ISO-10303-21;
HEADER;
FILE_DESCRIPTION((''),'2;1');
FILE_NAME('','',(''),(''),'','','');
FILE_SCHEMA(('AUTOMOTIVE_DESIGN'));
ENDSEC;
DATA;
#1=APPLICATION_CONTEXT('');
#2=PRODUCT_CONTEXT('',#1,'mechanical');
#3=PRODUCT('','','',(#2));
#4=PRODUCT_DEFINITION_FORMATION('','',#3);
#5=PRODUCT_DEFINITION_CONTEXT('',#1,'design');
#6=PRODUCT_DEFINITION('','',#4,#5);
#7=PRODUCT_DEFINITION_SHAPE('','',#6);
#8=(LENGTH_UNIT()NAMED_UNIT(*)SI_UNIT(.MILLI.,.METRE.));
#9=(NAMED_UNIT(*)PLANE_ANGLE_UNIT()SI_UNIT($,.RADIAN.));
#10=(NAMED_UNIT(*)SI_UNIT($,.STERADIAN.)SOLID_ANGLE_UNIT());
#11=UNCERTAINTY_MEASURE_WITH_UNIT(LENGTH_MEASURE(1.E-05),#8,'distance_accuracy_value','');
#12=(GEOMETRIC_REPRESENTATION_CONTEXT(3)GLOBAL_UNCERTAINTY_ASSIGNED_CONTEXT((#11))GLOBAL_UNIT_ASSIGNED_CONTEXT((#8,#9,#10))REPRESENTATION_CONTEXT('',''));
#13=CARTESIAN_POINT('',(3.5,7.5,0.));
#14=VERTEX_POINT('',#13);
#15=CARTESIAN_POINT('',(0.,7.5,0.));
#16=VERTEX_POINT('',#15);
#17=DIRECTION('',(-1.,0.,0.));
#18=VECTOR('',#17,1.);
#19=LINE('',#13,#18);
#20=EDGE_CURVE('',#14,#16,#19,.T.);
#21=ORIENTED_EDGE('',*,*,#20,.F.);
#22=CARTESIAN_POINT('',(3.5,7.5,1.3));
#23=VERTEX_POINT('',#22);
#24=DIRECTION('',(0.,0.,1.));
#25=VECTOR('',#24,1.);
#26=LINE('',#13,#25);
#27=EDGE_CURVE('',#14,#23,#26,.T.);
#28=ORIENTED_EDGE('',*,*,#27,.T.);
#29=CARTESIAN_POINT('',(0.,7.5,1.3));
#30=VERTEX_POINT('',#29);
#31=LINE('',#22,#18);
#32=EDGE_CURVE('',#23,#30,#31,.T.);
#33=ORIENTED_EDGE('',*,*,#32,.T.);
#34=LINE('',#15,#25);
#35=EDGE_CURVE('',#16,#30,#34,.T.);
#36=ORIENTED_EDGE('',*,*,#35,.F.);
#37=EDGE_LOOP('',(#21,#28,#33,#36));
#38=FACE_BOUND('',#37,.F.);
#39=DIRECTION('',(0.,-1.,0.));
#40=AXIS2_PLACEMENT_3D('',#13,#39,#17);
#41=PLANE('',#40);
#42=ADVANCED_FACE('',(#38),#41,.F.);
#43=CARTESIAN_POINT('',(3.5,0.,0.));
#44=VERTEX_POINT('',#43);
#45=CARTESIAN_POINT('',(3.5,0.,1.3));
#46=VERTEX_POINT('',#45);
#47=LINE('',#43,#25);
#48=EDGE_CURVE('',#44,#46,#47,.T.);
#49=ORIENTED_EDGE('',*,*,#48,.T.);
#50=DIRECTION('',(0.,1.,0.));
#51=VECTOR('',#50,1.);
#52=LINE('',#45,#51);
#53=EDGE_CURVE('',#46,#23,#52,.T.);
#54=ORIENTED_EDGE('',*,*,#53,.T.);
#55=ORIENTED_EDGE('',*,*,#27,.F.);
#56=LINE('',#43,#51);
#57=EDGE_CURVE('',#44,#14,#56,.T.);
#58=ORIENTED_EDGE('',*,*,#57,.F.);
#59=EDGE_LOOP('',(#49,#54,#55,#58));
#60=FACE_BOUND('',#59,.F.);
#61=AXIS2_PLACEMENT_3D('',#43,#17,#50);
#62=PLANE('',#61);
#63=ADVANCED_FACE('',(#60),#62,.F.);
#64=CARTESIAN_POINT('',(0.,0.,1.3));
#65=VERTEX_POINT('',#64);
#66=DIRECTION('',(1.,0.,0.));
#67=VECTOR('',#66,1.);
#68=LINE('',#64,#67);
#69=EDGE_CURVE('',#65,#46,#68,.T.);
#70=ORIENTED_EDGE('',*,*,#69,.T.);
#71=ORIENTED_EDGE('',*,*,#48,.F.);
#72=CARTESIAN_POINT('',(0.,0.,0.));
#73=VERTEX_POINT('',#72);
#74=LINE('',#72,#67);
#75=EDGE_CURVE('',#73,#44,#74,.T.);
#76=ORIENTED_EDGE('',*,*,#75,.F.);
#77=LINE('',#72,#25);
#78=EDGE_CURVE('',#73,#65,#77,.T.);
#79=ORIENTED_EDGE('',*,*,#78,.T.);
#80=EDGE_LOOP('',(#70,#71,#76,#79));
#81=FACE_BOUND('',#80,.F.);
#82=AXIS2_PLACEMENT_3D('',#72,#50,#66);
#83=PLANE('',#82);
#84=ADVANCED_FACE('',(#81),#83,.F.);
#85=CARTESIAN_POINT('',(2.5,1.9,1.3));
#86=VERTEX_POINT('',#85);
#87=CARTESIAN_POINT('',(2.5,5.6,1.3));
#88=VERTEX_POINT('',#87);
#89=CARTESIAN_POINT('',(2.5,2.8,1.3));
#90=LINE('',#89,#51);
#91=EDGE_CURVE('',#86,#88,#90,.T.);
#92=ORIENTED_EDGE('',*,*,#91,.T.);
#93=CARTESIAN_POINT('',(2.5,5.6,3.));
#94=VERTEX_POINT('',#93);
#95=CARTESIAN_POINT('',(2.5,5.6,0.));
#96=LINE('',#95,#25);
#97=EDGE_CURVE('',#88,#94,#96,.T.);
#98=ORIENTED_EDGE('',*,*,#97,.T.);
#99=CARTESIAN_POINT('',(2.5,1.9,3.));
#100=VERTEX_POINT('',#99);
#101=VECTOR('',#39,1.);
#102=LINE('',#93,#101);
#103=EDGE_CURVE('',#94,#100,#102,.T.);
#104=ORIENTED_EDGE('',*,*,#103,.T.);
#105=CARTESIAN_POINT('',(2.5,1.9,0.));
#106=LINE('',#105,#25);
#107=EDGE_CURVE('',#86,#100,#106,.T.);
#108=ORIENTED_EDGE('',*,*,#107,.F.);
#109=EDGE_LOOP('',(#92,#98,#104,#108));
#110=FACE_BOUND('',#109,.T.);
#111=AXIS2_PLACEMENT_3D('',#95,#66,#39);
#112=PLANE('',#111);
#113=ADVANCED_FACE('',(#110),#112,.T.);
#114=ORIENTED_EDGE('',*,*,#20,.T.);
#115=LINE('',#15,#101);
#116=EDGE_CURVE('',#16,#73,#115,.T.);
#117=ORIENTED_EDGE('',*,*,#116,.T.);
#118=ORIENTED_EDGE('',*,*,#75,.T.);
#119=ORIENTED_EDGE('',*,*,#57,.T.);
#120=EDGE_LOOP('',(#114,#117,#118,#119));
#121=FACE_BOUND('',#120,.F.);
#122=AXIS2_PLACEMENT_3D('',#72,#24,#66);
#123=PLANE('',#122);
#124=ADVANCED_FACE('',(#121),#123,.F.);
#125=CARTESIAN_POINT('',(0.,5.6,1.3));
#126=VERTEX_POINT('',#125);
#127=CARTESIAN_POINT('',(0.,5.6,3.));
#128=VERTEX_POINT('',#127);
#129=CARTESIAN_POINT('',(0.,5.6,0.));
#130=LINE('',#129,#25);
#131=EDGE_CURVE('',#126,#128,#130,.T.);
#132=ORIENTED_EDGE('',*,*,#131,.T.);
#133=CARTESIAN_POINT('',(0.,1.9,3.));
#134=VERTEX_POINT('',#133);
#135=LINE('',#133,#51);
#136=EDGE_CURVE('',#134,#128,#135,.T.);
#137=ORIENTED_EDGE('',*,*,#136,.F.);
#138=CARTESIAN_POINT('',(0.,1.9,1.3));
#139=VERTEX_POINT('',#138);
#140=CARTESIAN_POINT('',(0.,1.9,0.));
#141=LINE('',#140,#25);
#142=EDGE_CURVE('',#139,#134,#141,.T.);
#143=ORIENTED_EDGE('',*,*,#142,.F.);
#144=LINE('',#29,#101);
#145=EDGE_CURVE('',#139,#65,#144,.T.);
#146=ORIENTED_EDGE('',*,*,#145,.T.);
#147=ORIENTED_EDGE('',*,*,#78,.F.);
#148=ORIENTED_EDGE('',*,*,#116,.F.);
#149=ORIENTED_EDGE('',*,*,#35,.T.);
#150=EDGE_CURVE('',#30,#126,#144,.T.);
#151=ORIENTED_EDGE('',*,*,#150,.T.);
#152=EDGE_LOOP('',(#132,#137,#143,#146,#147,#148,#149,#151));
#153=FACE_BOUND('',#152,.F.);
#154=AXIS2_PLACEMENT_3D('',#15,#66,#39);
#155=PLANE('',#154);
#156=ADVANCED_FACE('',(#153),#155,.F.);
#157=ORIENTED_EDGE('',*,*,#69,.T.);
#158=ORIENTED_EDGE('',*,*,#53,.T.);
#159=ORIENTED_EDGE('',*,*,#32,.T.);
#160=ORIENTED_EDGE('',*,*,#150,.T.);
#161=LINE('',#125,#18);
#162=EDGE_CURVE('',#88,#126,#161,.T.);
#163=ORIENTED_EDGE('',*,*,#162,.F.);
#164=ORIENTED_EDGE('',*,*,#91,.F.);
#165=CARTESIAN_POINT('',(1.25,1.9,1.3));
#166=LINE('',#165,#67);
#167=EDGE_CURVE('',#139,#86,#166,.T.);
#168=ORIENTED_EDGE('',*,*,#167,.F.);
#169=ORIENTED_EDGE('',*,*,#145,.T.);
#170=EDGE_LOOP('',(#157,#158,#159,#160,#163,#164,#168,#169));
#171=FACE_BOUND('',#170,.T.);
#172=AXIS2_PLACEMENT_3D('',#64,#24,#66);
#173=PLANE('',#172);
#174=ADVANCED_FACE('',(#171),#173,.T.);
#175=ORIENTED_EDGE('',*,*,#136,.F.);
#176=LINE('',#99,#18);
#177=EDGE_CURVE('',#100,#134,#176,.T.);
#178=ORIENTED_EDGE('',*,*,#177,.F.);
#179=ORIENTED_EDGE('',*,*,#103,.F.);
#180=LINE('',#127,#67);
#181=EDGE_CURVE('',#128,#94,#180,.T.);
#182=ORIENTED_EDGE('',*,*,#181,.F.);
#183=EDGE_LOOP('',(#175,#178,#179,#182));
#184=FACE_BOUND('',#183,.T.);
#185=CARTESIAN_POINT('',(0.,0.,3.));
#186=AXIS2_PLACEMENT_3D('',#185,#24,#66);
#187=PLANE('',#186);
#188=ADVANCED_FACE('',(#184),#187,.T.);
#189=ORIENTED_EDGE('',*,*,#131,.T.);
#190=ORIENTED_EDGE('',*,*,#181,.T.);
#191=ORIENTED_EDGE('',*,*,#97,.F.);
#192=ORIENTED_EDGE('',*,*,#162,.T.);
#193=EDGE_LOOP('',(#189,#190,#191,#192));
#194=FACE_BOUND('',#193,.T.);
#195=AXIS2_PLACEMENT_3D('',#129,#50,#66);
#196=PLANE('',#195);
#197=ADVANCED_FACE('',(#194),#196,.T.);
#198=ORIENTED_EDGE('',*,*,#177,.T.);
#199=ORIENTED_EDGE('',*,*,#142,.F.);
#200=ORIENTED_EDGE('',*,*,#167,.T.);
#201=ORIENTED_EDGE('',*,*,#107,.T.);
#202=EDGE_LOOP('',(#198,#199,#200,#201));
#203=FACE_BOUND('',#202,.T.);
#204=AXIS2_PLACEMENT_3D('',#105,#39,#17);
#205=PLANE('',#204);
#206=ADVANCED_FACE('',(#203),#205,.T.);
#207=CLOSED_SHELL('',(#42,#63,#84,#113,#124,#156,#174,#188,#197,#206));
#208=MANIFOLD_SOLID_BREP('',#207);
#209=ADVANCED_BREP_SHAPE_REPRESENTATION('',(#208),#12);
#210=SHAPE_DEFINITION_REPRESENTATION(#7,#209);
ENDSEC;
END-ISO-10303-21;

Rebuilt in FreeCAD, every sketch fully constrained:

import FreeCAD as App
import Part
import Sketcher

V = App.Vector
Q = App.Units.Quantity


def add_polygon(sketch, points):
    """Adds a closed chain of lines whose ends are joined by coincident constraints."""
    first, n = sketch.GeometryCount, len(points)
    for a, b in zip(points, points[1:] + points[:1]):
        sketch.addGeometry(Part.LineSegment(App.Vector(*a, 0), App.Vector(*b, 0)), False)
    for i in range(n):
        sketch.addConstraint(Sketcher.Constraint("Coincident", first + i, 2, first + (i + 1) % n, 1))

doc = App.newDocument("Part")
body = doc.addObject("PartDesign::Body", "Body")

sketch1 = body.newObject("Sketcher::SketchObject", "Sketch")
sketch1.AttachmentSupport = (doc.getObject("XY_Plane"), [""])
sketch1.MapMode = "FlatFace"
add_polygon(sketch1, [(0, 7.5), (0, 0), (3.5, 0), (3.5, 7.5)])
sketch1.addConstraint([
    Sketcher.Constraint("Vertical", 0),
    Sketcher.Constraint("Horizontal", 1),
    Sketcher.Constraint("Vertical", 2),
    Sketcher.Constraint("Horizontal", 3),
    Sketcher.Constraint("Coincident", 0, 2, -1, 1),
    Sketcher.Constraint("DistanceX", 1, 1, 1, 2, Q("3.5 mm")),
    Sketcher.Constraint("DistanceY", 0, 2, 0, 1, Q("7.5 mm")),
])
pad1 = body.newObject("PartDesign::Pad", "Pad")
pad1.Profile = sketch1
pad1.Length = 1.3

sketch2 = body.newObject("Sketcher::SketchObject", "Sketch001")
sketch2.AttachmentSupport = (doc.getObject("XY_Plane"), [""])
sketch2.MapMode = "FlatFace"
add_polygon(sketch2, [(2.5, 5.6), (0, 5.6), (0, 1.9), (2.5, 1.9)])
sketch2.addConstraint([
    Sketcher.Constraint("Horizontal", 0),
    Sketcher.Constraint("Vertical", 1),
    Sketcher.Constraint("Horizontal", 2),
    Sketcher.Constraint("Vertical", 3),
    Sketcher.Constraint("PointOnObject", 0, 2, -2),
    Sketcher.Constraint("DistanceX", 0, 2, 0, 1, Q("2.5 mm")),
    Sketcher.Constraint("DistanceY", 1, 2, 1, 1, Q("3.7 mm")),
    Sketcher.Constraint("DistanceY", -1, 1, 1, 2, Q("1.9 mm")),
])
pad2 = body.newObject("PartDesign::Pad", "Pad001")
pad2.Profile = sketch2
pad2.Length = 3

doc.recompute()
